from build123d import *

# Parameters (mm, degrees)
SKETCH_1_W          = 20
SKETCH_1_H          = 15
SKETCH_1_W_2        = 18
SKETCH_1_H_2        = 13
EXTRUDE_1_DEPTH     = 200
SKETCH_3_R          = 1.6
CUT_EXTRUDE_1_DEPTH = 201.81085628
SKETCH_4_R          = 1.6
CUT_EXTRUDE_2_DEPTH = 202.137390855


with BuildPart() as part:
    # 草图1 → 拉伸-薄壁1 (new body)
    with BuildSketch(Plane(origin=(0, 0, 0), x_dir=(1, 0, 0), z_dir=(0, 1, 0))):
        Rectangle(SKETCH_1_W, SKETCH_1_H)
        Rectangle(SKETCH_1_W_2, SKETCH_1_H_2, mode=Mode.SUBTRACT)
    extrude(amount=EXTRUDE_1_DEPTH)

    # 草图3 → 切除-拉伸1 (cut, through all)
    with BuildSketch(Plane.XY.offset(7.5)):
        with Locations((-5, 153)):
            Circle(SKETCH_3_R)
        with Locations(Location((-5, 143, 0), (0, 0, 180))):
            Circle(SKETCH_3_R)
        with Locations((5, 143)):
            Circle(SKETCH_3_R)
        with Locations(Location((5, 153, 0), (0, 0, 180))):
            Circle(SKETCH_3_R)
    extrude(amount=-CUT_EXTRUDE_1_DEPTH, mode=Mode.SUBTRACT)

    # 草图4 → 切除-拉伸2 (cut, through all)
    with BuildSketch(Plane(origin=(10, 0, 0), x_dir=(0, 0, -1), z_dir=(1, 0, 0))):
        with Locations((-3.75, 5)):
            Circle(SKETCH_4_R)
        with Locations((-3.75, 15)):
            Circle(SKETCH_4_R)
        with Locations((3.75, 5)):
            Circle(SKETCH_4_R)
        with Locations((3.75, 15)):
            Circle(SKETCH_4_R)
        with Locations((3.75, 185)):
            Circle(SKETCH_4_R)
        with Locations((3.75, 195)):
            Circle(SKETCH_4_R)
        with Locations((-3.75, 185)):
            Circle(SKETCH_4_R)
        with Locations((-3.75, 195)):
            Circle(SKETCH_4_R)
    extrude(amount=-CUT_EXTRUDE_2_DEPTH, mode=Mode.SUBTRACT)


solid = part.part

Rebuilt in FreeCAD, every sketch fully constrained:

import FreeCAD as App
import Part
import Sketcher
from FreeCAD import Vector

doc = App.newDocument("Part")
body = doc.addObject("PartDesign::Body", "Body")

# Sketch on XZ plane
sketch1 = body.newObject("Sketcher::SketchObject", "Sketch")
sketch1.AttachmentSupport = (doc.getObject("XZ_Plane"), [""])
sketch1.MapMode = "FlatFace"
sketch1.addGeometry([
    Part.LineSegment(Vector(-10, -8, 0), Vector(-10, 8, 0)),  # 0
    Part.LineSegment(Vector(-10, 8, 0), Vector(10, 8, 0)),  # 1
    Part.LineSegment(Vector(10, 8, 0), Vector(10, -8, 0)),  # 2
    Part.LineSegment(Vector(10, -8, 0), Vector(-10, -8, 0)),  # 3
    Part.LineSegment(Vector(9, 6, 0), Vector(-9, 6, 0)),  # 4
    Part.LineSegment(Vector(-9, 6, 0), Vector(-9, -6, 0)),  # 5
    Part.LineSegment(Vector(-9, -6, 0), Vector(9, -6, 0)),  # 6
    Part.LineSegment(Vector(9, -6, 0), Vector(9, 6, 0)),  # 7
], False)
sketch1.addConstraint([
    Sketcher.Constraint("Coincident", 0, 2, 1, 1),
    Sketcher.Constraint("Coincident", 1, 2, 2, 1),
    Sketcher.Constraint("Coincident", 2, 2, 3, 1),
    Sketcher.Constraint("Coincident", 3, 2, 0, 1),
    Sketcher.Constraint("Coincident", 4, 2, 5, 1),
    Sketcher.Constraint("Coincident", 5, 2, 6, 1),
    Sketcher.Constraint("Coincident", 6, 2, 7, 1),
    Sketcher.Constraint("Coincident", 7, 2, 4, 1),
    Sketcher.Constraint("Vertical", 0),
    Sketcher.Constraint("Horizontal", 1),
    Sketcher.Constraint("Vertical", 2),
    Sketcher.Constraint("Horizontal", 3),
    Sketcher.Constraint("Horizontal", 4),
    Sketcher.Constraint("Vertical", 5),
    Sketcher.Constraint("Horizontal", 6),
    Sketcher.Constraint("Vertical", 7),
    Sketcher.Constraint("Symmetric", 0, 2, 2, 2, -1, 1),
    Sketcher.Constraint("Symmetric", 4, 2, 6, 2, -1, 1),
    Sketcher.Constraint("DistanceX", 1, 1, 1, 2, 20.0),
    Sketcher.Constraint("DistanceX", 4, 2, 4, 1, 18.0),
    Sketcher.Constraint("DistanceY", 0, 1, 0, 2, 15.0),
    Sketcher.Constraint("DistanceY", 5, 2, 5, 1, 13.0),
])
pad1 = body.newObject("PartDesign::Pad", "Pad")
pad1.Profile = sketch1
pad1.Length = 200
pad1.Reversed = True

# Sketch on XY plane
sketch2 = body.newObject("Sketcher::SketchObject", "Sketch001")
sketch2.AttachmentSupport = (doc.getObject("XY_Plane"), [""])
sketch2.MapMode = "FlatFace"
sketch2.AttachmentOffset = App.Placement(Vector(0, 0, 7.5), App.Rotation())
sketch2.addGeometry([
    Part.Circle(Vector(-5, 153, 0), Vector(0, 0, 1), 1.6),
    Part.Circle(Vector(-5, 143, 0), Vector(0, 0, 1), 1.6),
    Part.Circle(Vector(5, 143, 0), Vector(0, 0, 1), 1.6),
    Part.Circle(Vector(5, 153, 0), Vector(0, 0, 1), 1.6),
], False)
sketch2.addConstraint([
    Sketcher.Constraint("Equal", 0, 1),
    Sketcher.Constraint("Equal", 1, 2),
    Sketcher.Constraint("Equal", 2, 3),
    Sketcher.Constraint("Symmetric", 1, 3, 2, 3, -2),
    Sketcher.Constraint("Symmetric", 0, 3, 3, 3, -2),
    Sketcher.Constraint("Vertical", 0, 3, 1, 3),
    Sketcher.Constraint("Diameter", 0, 3.2),
    Sketcher.Constraint("DistanceX", 0, 3, -1, 1, 5.0),
    Sketcher.Constraint("DistanceY", -1, 1, 0, 3, 153.0),
    Sketcher.Constraint("DistanceY", -1, 1, 1, 3, 143.0),
])
pocket1 = body.newObject("PartDesign::Pocket", "Pocket")
pocket1.Profile = sketch2
pocket1.Type = "ThroughAll"

# Sketch on YZ plane
sketch3 = body.newObject("Sketcher::SketchObject", "Sketch002")
sketch3.AttachmentSupport = (doc.getObject("YZ_Plane"), [""])
sketch3.MapMode = "FlatFace"
sketch3.AttachmentOffset = App.Placement(Vector(0, 0, 10), App.Rotation())
sketch3.addGeometry([
    Part.Circle(Vector(5, 3.8, 0), Vector(0, 0, 1), 1.6),  # 0
    Part.Circle(Vector(15, 3.8, 0), Vector(0, 0, 1), 1.6),  # 1
    Part.Circle(Vector(5, -3.8, 0), Vector(0, 0, 1), 1.6),  # 2
    Part.Circle(Vector(15, -3.8, 0), Vector(0, 0, 1), 1.6),  # 3
    Part.Circle(Vector(185, -3.8, 0), Vector(0, 0, 1), 1.6),  # 4
    Part.Circle(Vector(195, -3.8, 0), Vector(0, 0, 1), 1.6),  # 5
    Part.Circle(Vector(185, 3.8, 0), Vector(0, 0, 1), 1.6),  # 6
    Part.Circle(Vector(195, 3.8, 0), Vector(0, 0, 1), 1.6),  # 7
], False)
sketch3.addConstraint([
    Sketcher.Constraint("Equal", 0, 1),
    Sketcher.Constraint("Equal", 1, 2),
    Sketcher.Constraint("Equal", 2, 3),
    Sketcher.Constraint("Equal", 3, 4),
    Sketcher.Constraint("Equal", 4, 5),
    Sketcher.Constraint("Equal", 5, 6),
    Sketcher.Constraint("Equal", 6, 7),
    Sketcher.Constraint("Symmetric", 0, 3, 2, 3, -1),
    Sketcher.Constraint("Symmetric", 1, 3, 3, 3, -1),
    Sketcher.Constraint("Symmetric", 4, 3, 6, 3, -1),
    Sketcher.Constraint("Symmetric", 5, 3, 7, 3, -1),
    Sketcher.Constraint("Horizontal", 0, 3, 1, 3),
    Sketcher.Constraint("Horizontal", 3, 3, 4, 3),
    Sketcher.Constraint("Horizontal", 4, 3, 5, 3),
    Sketcher.Constraint("Diameter", 0, 3.2),
    Sketcher.Constraint("DistanceX", -1, 1, 0, 3, 5.0),
    Sketcher.Constraint("DistanceX", -1, 1, 1, 3, 15.0),
    Sketcher.Constraint("DistanceX", -1, 1, 4, 3, 185.0),
    Sketcher.Constraint("DistanceX", -1, 1, 5, 3, 195.0),
    Sketcher.Constraint("DistanceY", 2, 3, 0, 3, 7.5),
])
pocket2 = body.newObject("PartDesign::Pocket", "Pocket001")
pocket2.Profile = sketch3
pocket2.Type = "ThroughAll"

doc.recompute()
